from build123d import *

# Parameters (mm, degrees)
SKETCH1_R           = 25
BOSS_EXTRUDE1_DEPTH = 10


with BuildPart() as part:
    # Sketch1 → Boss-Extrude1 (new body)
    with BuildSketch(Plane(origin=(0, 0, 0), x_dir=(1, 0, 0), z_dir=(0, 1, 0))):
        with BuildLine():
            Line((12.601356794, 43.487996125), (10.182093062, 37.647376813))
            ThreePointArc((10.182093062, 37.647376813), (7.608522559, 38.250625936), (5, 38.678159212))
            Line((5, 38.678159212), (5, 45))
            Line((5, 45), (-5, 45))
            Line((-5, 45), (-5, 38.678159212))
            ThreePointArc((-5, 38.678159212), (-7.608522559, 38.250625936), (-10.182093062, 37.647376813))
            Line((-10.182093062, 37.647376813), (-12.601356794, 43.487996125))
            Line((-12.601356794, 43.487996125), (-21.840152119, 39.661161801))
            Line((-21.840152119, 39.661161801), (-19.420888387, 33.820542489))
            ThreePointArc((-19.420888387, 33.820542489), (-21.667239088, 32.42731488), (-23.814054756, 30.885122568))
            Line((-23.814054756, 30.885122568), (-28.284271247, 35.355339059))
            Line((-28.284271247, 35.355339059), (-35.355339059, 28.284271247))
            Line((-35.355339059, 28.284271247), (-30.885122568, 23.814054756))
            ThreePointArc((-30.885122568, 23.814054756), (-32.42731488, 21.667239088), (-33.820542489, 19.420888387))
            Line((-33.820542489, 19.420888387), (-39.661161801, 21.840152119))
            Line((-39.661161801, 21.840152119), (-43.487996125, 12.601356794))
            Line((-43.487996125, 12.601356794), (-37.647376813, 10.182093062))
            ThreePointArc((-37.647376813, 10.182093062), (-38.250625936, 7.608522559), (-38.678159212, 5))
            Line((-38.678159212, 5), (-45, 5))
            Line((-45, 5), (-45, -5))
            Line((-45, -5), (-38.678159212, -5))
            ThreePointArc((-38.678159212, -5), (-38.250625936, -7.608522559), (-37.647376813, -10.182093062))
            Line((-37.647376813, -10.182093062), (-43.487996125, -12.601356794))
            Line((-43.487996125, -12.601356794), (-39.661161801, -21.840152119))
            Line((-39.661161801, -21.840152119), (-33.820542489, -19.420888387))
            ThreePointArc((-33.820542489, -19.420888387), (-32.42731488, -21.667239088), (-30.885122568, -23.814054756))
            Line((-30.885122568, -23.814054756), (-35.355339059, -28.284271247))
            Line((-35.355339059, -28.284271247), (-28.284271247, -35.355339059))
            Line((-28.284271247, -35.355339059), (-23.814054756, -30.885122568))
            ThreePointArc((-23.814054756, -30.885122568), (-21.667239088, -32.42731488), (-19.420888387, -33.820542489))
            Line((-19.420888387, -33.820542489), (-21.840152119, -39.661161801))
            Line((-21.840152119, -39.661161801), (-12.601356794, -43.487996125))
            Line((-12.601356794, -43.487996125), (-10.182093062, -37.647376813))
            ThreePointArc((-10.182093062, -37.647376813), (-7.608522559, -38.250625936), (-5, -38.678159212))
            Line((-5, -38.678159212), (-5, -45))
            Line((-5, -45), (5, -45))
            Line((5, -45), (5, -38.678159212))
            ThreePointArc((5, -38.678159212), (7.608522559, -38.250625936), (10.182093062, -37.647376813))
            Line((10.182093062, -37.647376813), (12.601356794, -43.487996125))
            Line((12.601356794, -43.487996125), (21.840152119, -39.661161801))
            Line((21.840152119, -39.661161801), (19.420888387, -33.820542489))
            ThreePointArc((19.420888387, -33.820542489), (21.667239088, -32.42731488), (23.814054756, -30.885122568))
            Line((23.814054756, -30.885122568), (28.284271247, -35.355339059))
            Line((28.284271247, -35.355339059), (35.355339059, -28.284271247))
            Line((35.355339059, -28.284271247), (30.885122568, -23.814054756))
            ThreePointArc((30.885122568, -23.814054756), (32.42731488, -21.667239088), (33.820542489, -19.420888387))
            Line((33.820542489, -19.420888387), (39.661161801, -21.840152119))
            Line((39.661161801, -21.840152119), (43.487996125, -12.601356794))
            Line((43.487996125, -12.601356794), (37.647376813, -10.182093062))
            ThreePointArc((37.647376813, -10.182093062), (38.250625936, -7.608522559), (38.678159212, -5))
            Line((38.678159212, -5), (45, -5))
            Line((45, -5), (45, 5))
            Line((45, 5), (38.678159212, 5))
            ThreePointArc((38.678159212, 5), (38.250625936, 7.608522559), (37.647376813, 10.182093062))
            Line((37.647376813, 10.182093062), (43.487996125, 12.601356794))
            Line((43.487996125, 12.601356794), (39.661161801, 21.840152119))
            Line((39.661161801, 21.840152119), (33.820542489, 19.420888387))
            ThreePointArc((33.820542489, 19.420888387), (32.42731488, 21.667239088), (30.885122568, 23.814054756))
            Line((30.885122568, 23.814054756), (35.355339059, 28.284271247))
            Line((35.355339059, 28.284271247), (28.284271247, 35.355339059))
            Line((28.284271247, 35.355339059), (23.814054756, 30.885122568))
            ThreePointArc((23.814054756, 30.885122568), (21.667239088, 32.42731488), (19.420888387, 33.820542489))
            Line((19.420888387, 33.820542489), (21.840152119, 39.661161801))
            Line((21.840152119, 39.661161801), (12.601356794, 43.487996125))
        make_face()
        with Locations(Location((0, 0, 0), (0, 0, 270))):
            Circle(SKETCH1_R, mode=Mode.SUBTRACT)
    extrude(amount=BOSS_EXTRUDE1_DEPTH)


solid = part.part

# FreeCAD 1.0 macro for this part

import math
import FreeCAD as App
import Part
import Sketcher
from FreeCAD import Vector
Q = App.Units.Quantity

doc = App.newDocument("Part")
body = doc.addObject("PartDesign::Body", "Body")

sketch1 = doc.addObject("Sketcher::SketchObject", "Sketch")
body.addObject(sketch1)
sketch1.AttachmentSupport = (doc.XZ_Plane, [""])
sketch1.MapMode = "FlatFace"
sketch1.addGeometry([
    Part.LineSegment(Vector(13, -43, 0), Vector(10, -38, 0)),
    Part.ArcOfCircle(Part.Circle(Vector(0, 0, 0), Vector(0, 0, 1), 39), math.radians(-82.63), math.radians(-74.87)),
    Part.LineSegment(Vector(5, -39, 0), Vector(5, -45, 0)),
    Part.LineSegment(Vector(5, -45, 0), Vector(-5, -45, 0)),
    Part.LineSegment(Vector(-5, -45, 0), Vector(-5, -39, 0)),
    Part.ArcOfCircle(Part.Circle(Vector(0, 0, 0), Vector(0, 0, 1), 39), math.radians(-105.13), math.radians(-97.37)),
    Part.LineSegment(Vector(-10, -38, 0), Vector(-13, -43, 0)),
    Part.LineSegment(Vector(-13, -43, 0), Vector(-22, -40, 0)),
    Part.LineSegment(Vector(-22, -40, 0), Vector(-19, -34, 0)),
    Part.ArcOfCircle(Part.Circle(Vector(0, 0, 0), Vector(0, 0, 1), 39), math.radians(-127.63), math.radians(-119.87)),
    Part.LineSegment(Vector(-24, -31, 0), Vector(-28, -35, 0)),
    Part.LineSegment(Vector(-28, -35, 0), Vector(-35, -28, 0)),
    Part.LineSegment(Vector(-35, -28, 0), Vector(-31, -24, 0)),
    Part.ArcOfCircle(Part.Circle(Vector(0, 0, 0), Vector(0, 0, 1), 39), math.radians(-150.13), math.radians(-142.37)),
    Part.LineSegment(Vector(-34, -19, 0), Vector(-40, -22, 0)),
    Part.LineSegment(Vector(-40, -22, 0), Vector(-43, -13, 0)),
    Part.LineSegment(Vector(-43, -13, 0), Vector(-38, -10, 0)),
    Part.ArcOfCircle(Part.Circle(Vector(0, 0, 0), Vector(0, 0, 1), 39), math.radians(-172.63), math.radians(-164.87)),
    Part.LineSegment(Vector(-39, -5, 0), Vector(-45, -5, 0)),
    Part.LineSegment(Vector(-45, -5, 0), Vector(-45, 5, 0)),
    Part.LineSegment(Vector(-45, 5, 0), Vector(-39, 5, 0)),
    Part.ArcOfCircle(Part.Circle(Vector(0, 0, 0), Vector(0, 0, 1), 39), math.radians(164.87), math.radians(172.63)),
    Part.LineSegment(Vector(-38, 10, 0), Vector(-43, 13, 0)),
    Part.LineSegment(Vector(-43, 13, 0), Vector(-40, 22, 0)),
    Part.LineSegment(Vector(-40, 22, 0), Vector(-34, 19, 0)),
    Part.ArcOfCircle(Part.Circle(Vector(0, 0, 0), Vector(0, 0, 1), 39), math.radians(142.37), math.radians(150.13)),
    Part.LineSegment(Vector(-31, 24, 0), Vector(-35, 28, 0)),
    Part.LineSegment(Vector(-35, 28, 0), Vector(-28, 35, 0)),
    Part.LineSegment(Vector(-28, 35, 0), Vector(-24, 31, 0)),
    Part.ArcOfCircle(Part.Circle(Vector(0, 0, 0), Vector(0, 0, 1), 39), math.radians(119.87), math.radians(127.63)),
    Part.LineSegment(Vector(-19, 34, 0), Vector(-22, 40, 0)),
    Part.LineSegment(Vector(-22, 40, 0), Vector(-13, 43, 0)),
    Part.LineSegment(Vector(-13, 43, 0), Vector(-10, 38, 0)),
    Part.ArcOfCircle(Part.Circle(Vector(0, 0, 0), Vector(0, 0, 1), 39), math.radians(97.37), math.radians(105.13)),
    Part.LineSegment(Vector(-5, 39, 0), Vector(-5, 45, 0)),
    Part.LineSegment(Vector(-5, 45, 0), Vector(5, 45, 0)),
    Part.LineSegment(Vector(5, 45, 0), Vector(5, 39, 0)),
    Part.ArcOfCircle(Part.Circle(Vector(0, 0, 0), Vector(0, 0, 1), 39), math.radians(74.87), math.radians(82.63)),
    Part.LineSegment(Vector(10, 38, 0), Vector(13, 43, 0)),
    Part.LineSegment(Vector(13, 43, 0), Vector(22, 40, 0)),
    Part.LineSegment(Vector(22, 40, 0), Vector(19, 34, 0)),
    Part.ArcOfCircle(Part.Circle(Vector(0, 0, 0), Vector(0, 0, 1), 39), math.radians(52.37), math.radians(60.13)),
    Part.LineSegment(Vector(24, 31, 0), Vector(28, 35, 0)),
    Part.LineSegment(Vector(28, 35, 0), Vector(35, 28, 0)),
    Part.LineSegment(Vector(35, 28, 0), Vector(31, 24, 0)),
    Part.ArcOfCircle(Part.Circle(Vector(0, 0, 0), Vector(0, 0, 1), 39), math.radians(29.87), math.radians(37.63)),
    Part.LineSegment(Vector(34, 19, 0), Vector(40, 22, 0)),
    Part.LineSegment(Vector(40, 22, 0), Vector(43, 13, 0)),
    Part.LineSegment(Vector(43, 13, 0), Vector(38, 10, 0)),
    Part.ArcOfCircle(Part.Circle(Vector(0, 0, 0), Vector(0, 0, 1), 39), math.radians(7.37), math.radians(15.13)),
    Part.LineSegment(Vector(39, 5, 0), Vector(45, 5, 0)),
    Part.LineSegment(Vector(45, 5, 0), Vector(45, -5, 0)),
    Part.LineSegment(Vector(45, -5, 0), Vector(39, -5, 0)),
    Part.ArcOfCircle(Part.Circle(Vector(0, 0, 0), Vector(0, 0, 1), 39), math.radians(-15.13), math.radians(-7.37)),
    Part.LineSegment(Vector(38, -10, 0), Vector(43, -13, 0)),
    Part.LineSegment(Vector(43, -13, 0), Vector(40, -22, 0)),
    Part.LineSegment(Vector(40, -22, 0), Vector(34, -19, 0)),
    Part.ArcOfCircle(Part.Circle(Vector(0, 0, 0), Vector(0, 0, 1), 39), math.radians(-37.63), math.radians(-29.87)),
    Part.LineSegment(Vector(31, -24, 0), Vector(35, -28, 0)),
    Part.LineSegment(Vector(35, -28, 0), Vector(28, -35, 0)),
    Part.LineSegment(Vector(28, -35, 0), Vector(24, -31, 0)),
    Part.ArcOfCircle(Part.Circle(Vector(0, 0, 0), Vector(0, 0, 1), 39), math.radians(-60.13), math.radians(-52.37)),
    Part.LineSegment(Vector(19, -34, 0), Vector(22, -40, 0)),
    Part.LineSegment(Vector(22, -40, 0), Vector(13, -43, 0)),
    Part.Circle(Vector(0, 0, 0), Vector(0, 0, 1), 25),
], False)
sketch1.addConstraint([
    Sketcher.Constraint("Coincident", 0, 2, 1, 2),
    Sketcher.Constraint("Coincident", 1, 1, 2, 1),
    Sketcher.Constraint("Coincident", 2, 2, 3, 1),
    Sketcher.Constraint("Coincident", 3, 2, 4, 1),
    Sketcher.Constraint("Coincident", 4, 2, 5, 2),
    Sketcher.Constraint("Coincident", 5, 1, 6, 1),
    Sketcher.Constraint("Coincident", 6, 2, 7, 1),
    Sketcher.Constraint("Coincident", 7, 2, 8, 1),
    Sketcher.Constraint("Coincident", 8, 2, 9, 2),
    Sketcher.Constraint("Coincident", 9, 1, 10, 1),
    Sketcher.Constraint("Coincident", 10, 2, 11, 1),
    Sketcher.Constraint("Coincident", 11, 2, 12, 1),
    Sketcher.Constraint("Coincident", 12, 2, 13, 2),
    Sketcher.Constraint("Coincident", 13, 1, 14, 1),
    Sketcher.Constraint("Coincident", 14, 2, 15, 1),
    Sketcher.Constraint("Coincident", 15, 2, 16, 1),
    Sketcher.Constraint("Coincident", 16, 2, 17, 2),
    Sketcher.Constraint("Coincident", 17, 1, 18, 1),
    Sketcher.Constraint("Coincident", 18, 2, 19, 1),
    Sketcher.Constraint("Coincident", 19, 2, 20, 1),
    Sketcher.Constraint("Coincident", 20, 2, 21, 2),
    Sketcher.Constraint("Coincident", 21, 1, 22, 1),
    Sketcher.Constraint("Coincident", 22, 2, 23, 1),
    Sketcher.Constraint("Coincident", 23, 2, 24, 1),
    Sketcher.Constraint("Coincident", 24, 2, 25, 2),
    Sketcher.Constraint("Coincident", 25, 1, 26, 1),
    Sketcher.Constraint("Coincident", 26, 2, 27, 1),
    Sketcher.Constraint("Coincident", 27, 2, 28, 1),
    Sketcher.Constraint("Coincident", 28, 2, 29, 2),
    Sketcher.Constraint("Coincident", 29, 1, 30, 1),
    Sketcher.Constraint("Coincident", 30, 2, 31, 1),
    Sketcher.Constraint("Coincident", 31, 2, 32, 1),
    Sketcher.Constraint("Coincident", 32, 2, 33, 2),
    Sketcher.Constraint("Coincident", 33, 1, 34, 1),
    Sketcher.Constraint("Coincident", 34, 2, 35, 1),
    Sketcher.Constraint("Coincident", 35, 2, 36, 1),
    Sketcher.Constraint("Coincident", 36, 2, 37, 2),
    Sketcher.Constraint("Coincident", 37, 1, 38, 1),
    Sketcher.Constraint("Coincident", 38, 2, 39, 1),
    Sketcher.Constraint("Coincident", 39, 2, 40, 1),
    Sketcher.Constraint("Coincident", 40, 2, 41, 2),
    Sketcher.Constraint("Coincident", 41, 1, 42, 1),
    Sketcher.Constraint("Coincident", 42, 2, 43, 1),
    Sketcher.Constraint("Coincident", 43, 2, 44, 1),
    Sketcher.Constraint("Coincident", 44, 2, 45, 2),
    Sketcher.Constraint("Coincident", 45, 1, 46, 1),
    Sketcher.Constraint("Coincident", 46, 2, 47, 1),
    Sketcher.Constraint("Coincident", 47, 2, 48, 1),
    Sketcher.Constraint("Coincident", 48, 2, 49, 2),
    Sketcher.Constraint("Coincident", 49, 1, 50, 1),
    Sketcher.Constraint("Coincident", 50, 2, 51, 1),
    Sketcher.Constraint("Coincident", 51, 2, 52, 1),
    Sketcher.Constraint("Coincident", 52, 2, 53, 2),
    Sketcher.Constraint("Coincident", 53, 1, 54, 1),
    Sketcher.Constraint("Coincident", 54, 2, 55, 1),
    Sketcher.Constraint("Coincident", 55, 2, 56, 1),
    Sketcher.Constraint("Coincident", 56, 2, 57, 2),
    Sketcher.Constraint("Coincident", 57, 1, 58, 1),
    Sketcher.Constraint("Coincident", 58, 2, 59, 1),
    Sketcher.Constraint("Coincident", 59, 2, 60, 1),
    Sketcher.Constraint("Coincident", 60, 2, 61, 2),
    Sketcher.Constraint("Coincident", 61, 1, 62, 1),
    Sketcher.Constraint("Coincident", 62, 2, 63, 1),
    Sketcher.Constraint("Coincident", 63, 2, 0, 1),
    Sketcher.Constraint("Vertical", 2),
    Sketcher.Constraint("Horizontal", 3),
    Sketcher.Constraint("Vertical", 4),
    Sketcher.Constraint("Horizontal", 18),
    Sketcher.Constraint("Vertical", 19),
    Sketcher.Constraint("Horizontal", 20),
    Sketcher.Constraint("Vertical", 34),
    Sketcher.Constraint("Horizontal", 35),
    Sketcher.Constraint("Vertical", 36),
    Sketcher.Constraint("Horizontal", 50),
    Sketcher.Constraint("Vertical", 51),
    Sketcher.Constraint("Horizontal", 52),
    Sketcher.Constraint("Coincident", 1, 3, -1, 1),
    Sketcher.Constraint("Coincident", 5, 3, -1, 1),
    Sketcher.Constraint("Coincident", 9, 3, -1, 1),
    Sketcher.Constraint("Coincident", 13, 3, -1, 1),
    Sketcher.Constraint("Coincident", 17, 3, -1, 1),
    Sketcher.Constraint("Coincident", 21, 3, -1, 1),
    Sketcher.Constraint("Coincident", 25, 3, -1, 1),
    Sketcher.Constraint("Coincident", 29, 3, -1, 1),
    Sketcher.Constraint("Coincident", 33, 3, -1, 1),
    Sketcher.Constraint("Coincident", 37, 3, -1, 1),
    Sketcher.Constraint("Coincident", 41, 3, -1, 1),
    Sketcher.Constraint("Coincident", 45, 3, -1, 1),
    Sketcher.Constraint("Coincident", 49, 3, -1, 1),
    Sketcher.Constraint("Coincident", 53, 3, -1, 1),
    Sketcher.Constraint("Coincident", 57, 3, -1, 1),
    Sketcher.Constraint("Coincident", 61, 3, -1, 1),
    Sketcher.Constraint("Coincident", 64, 3, -1, 1),
    Sketcher.Constraint("Equal", 1, 5),
    Sketcher.Constraint("Equal", 5, 9),
    Sketcher.Constraint("Equal", 9, 13),
    Sketcher.Constraint("Equal", 13, 17),
    Sketcher.Constraint("Equal", 17, 21),
    Sketcher.Constraint("Equal", 21, 25),
    Sketcher.Constraint("Equal", 25, 29),
    Sketcher.Constraint("Equal", 29, 33),
    Sketcher.Constraint("Equal", 33, 37),
    Sketcher.Constraint("Equal", 37, 41),
    Sketcher.Constraint("Equal", 41, 45),
    Sketcher.Constraint("Equal", 45, 49),
    Sketcher.Constraint("Equal", 49, 53),
    Sketcher.Constraint("Equal", 53, 57),
    Sketcher.Constraint("Equal", 57, 61),
    Sketcher.Constraint("Symmetric", 2, 2, 34, 2, -1, 1),
    Sketcher.Constraint("Symmetric", 6, 2, 38, 2, -1, 1),
    Sketcher.Constraint("Symmetric", 7, 2, 39, 2, -1, 1),
    Sketcher.Constraint("Symmetric", 10, 2, 42, 2, -1, 1),
    Sketcher.Constraint("Symmetric", 11, 2, 43, 2, -1, 1),
    Sketcher.Constraint("Symmetric", 14, 2, 46, 2, -1, 1),
    Sketcher.Constraint("Symmetric", 15, 2, 47, 2, -1, 1),
    Sketcher.Constraint("Symmetric", 18, 2, 50, 2, -1, 1),
    Sketcher.Constraint("Symmetric", 22, 2, 54, 2, -1, 1),
    Sketcher.Constraint("Symmetric", 23, 2, 55, 2, -1, 1),
    Sketcher.Constraint("Symmetric", 26, 2, 58, 2, -1, 1),
    Sketcher.Constraint("Symmetric", 27, 2, 59, 2, -1, 1),
    Sketcher.Constraint("Symmetric", 30, 2, 62, 2, -1, 1),
    Sketcher.Constraint("Symmetric", 31, 2, 63, 2, -1, 1),
    Sketcher.Constraint("Symmetric", 31, 2, 38, 2, -2),
    Sketcher.Constraint("Symmetric", 30, 2, 39, 2, -2),
    Sketcher.Constraint("Symmetric", 27, 2, 42, 2, -2),
    Sketcher.Constraint("Symmetric", 26, 2, 43, 2, -2),
    Sketcher.Constraint("Symmetric", 23, 2, 46, 2, -2),
    Sketcher.Constraint("Symmetric", 22, 2, 47, 2, -2),
    Sketcher.Constraint("Perpendicular", 6, 7),
    Sketcher.Constraint("Perpendicular", 7, 8),
    Sketcher.Constraint("Perpendicular", 10, 11),
    Sketcher.Constraint("Perpendicular", 11, 12),
    Sketcher.Constraint("Perpendicular", 0, 14),
    Sketcher.Constraint("Perpendicular", 14, 15),
    Sketcher.Constraint("Perpendicular", 15, 16),
    Sketcher.Constraint("Perpendicular", 8, 22),
    Sketcher.Constraint("Perpendicular", 22, 23),
    Sketcher.Constraint("Perpendicular", 23, 24),
    Sketcher.Constraint("Perpendicular", 12, 26),
    Sketcher.Constraint("Perpendicular", 26, 27),
    Sketcher.Constraint("Perpendicular", 27, 28),
    Sketcher.Constraint("Perpendicular", 16, 30),
    Sketcher.Constraint("Perpendicular", 31, 32),
    Sketcher.Constraint("Perpendicular", 24, 38),
    Sketcher.Constraint("Perpendicular", 39, 40),
    Sketcher.Constraint("Perpendicular", 28, 42),
    Sketcher.Constraint("Perpendicular", 43, 44),
    Sketcher.Constraint("Perpendicular", 32, 46),
    Sketcher.Constraint("Perpendicular", 47, 48),
    Sketcher.Constraint("Perpendicular", 40, 54),
    Sketcher.Constraint("Perpendicular", 55, 56),
    Sketcher.Constraint("Perpendicular", 44, 58),
    Sketcher.Constraint("Perpendicular", 59, 60),
    Sketcher.Constraint("Perpendicular", 48, 62),
    Sketcher.Constraint("Horizontal", 1, 1, 4, 2),
    Sketcher.Constraint("Horizontal", 33, 1, 36, 2),
    Sketcher.Constraint("Horizontal", 20, 2, 49, 1),
    Sketcher.Constraint("Horizontal", 18, 2, 51, 2),
    Sketcher.Constraint("Equal", 52, 2),
    Sketcher.Constraint("Equal", 35, 19),
    Sketcher.Constraint("Equal", 6, 8),
    Sketcher.Constraint("Equal", 8, 10),
    Sketcher.Constraint("Equal", 7, 11),
    Sketcher.Constraint("Equal", 10, 12),
    Sketcher.Constraint("Equal", 12, 14),
    Sketcher.Constraint("Equal", 11, 15),
    Sketcher.Constraint("Equal", 14, 16),
    Sketcher.Constraint("Diameter", 64, 50.0),
    Sketcher.Constraint("Radius", 1, 39.0),
    Sketcher.Constraint("DistanceX", 3, 2, 3, 1, 10.0),
    Sketcher.Constraint("Distance", 7, 10.0),
    Sketcher.Constraint("DistanceY", 2, 2, -1, 1, 45.0),
    Sketcher.Constraint("Angle", 0, Q("112.5 deg")),
    Sketcher.Constraint("Distance", 0, 6.321841),
])
pad1 = doc.addObject("PartDesign::Pad", "Pad")
body.addObject(pad1)
pad1.Profile = sketch1
pad1.Length = 10
pad1.Reversed = True

doc.recompute()
